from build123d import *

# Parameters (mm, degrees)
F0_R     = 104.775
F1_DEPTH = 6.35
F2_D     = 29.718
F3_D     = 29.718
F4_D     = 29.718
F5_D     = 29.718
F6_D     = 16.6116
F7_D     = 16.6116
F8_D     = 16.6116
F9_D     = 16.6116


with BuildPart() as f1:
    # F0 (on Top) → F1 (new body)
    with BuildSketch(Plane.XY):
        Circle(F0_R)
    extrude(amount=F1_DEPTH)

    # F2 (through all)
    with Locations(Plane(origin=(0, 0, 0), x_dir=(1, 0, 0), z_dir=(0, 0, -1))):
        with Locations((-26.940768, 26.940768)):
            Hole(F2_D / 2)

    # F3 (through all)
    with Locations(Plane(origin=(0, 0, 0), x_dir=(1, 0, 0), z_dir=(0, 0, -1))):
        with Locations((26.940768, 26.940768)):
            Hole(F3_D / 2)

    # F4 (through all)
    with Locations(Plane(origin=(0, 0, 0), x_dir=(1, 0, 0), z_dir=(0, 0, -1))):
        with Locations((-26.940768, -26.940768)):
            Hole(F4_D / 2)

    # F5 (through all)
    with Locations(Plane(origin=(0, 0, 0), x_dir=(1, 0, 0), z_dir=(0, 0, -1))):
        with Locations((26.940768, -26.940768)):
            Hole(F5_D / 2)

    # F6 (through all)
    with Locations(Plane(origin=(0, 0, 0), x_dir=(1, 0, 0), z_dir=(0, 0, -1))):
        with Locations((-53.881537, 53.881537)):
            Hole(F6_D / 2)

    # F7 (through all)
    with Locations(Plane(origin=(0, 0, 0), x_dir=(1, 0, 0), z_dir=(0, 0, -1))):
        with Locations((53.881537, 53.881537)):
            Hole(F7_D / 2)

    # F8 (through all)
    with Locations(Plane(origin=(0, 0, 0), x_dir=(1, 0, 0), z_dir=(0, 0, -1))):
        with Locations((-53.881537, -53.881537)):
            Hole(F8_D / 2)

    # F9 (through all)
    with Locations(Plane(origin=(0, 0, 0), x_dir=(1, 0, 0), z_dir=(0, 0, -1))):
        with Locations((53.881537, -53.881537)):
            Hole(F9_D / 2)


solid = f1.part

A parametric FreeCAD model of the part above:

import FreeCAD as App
import Part
import Sketcher
Q = App.Units.Quantity

doc = App.newDocument("Part")
body = doc.addObject("PartDesign::Body", "Body")

sketch1 = body.newObject("Sketcher::SketchObject", "Sketch")
sketch1.AttachmentSupport = (doc.getObject("XY_Plane"), [""])
sketch1.MapMode = "FlatFace"
sketch1.addGeometry(Part.Circle(App.Vector(0, 0, 0), App.Vector(0, 0, 1), 104.775), False)
sketch1.addConstraint([
    Sketcher.Constraint("Coincident", 0, 3, -1, 1),
    Sketcher.Constraint("Diameter", 0, Q("8.25 in")),
])
pad1 = body.newObject("PartDesign::Pad", "Pad")
pad1.Profile = sketch1
pad1.Length = Q("0.25 in")

sketch2 = body.newObject("Sketcher::SketchObject", "Sketch001")
sketch2.AttachmentSupport = (doc.getObject("XY_Plane"), [""])
sketch2.MapMode = "FlatFace"
sketch2.addGeometry(Part.Circle(App.Vector(-26.940768, -26.940768, 0), App.Vector(0, 0, 1), 14.859), False)
sketch2.addConstraint([
    Sketcher.Constraint("Diameter", 0, Q("1.17 in")),
    Sketcher.Constraint("DistanceX", 0, 3, -1, 1, 26.940768),
    Sketcher.Constraint("DistanceY", 0, 3, -1, 1, 26.940768),
])
doc.recompute()
hole = body.newObject("PartDesign::Hole", "Hole")
hole.Profile = sketch2
hole.ThreadType = "None"
hole.Diameter = Q("1.17 in")
hole.DepthType = "ThroughAll"
hole.Reversed = True

sketch3 = body.newObject("Sketcher::SketchObject", "Sketch002")
sketch3.AttachmentSupport = (doc.getObject("XY_Plane"), [""])
sketch3.MapMode = "FlatFace"
sketch3.addGeometry(Part.Circle(App.Vector(26.940768, -26.940768, 0), App.Vector(0, 0, 1), 14.859), False)
sketch3.addConstraint([
    Sketcher.Constraint("Diameter", 0, Q("1.17 in")),
    Sketcher.Constraint("DistanceX", -1, 1, 0, 3, 26.940768),
    Sketcher.Constraint("DistanceY", 0, 3, -1, 1, 26.940768),
])
doc.recompute()
hole2 = body.newObject("PartDesign::Hole", "Hole001")
hole2.Profile = sketch3
hole2.ThreadType = "None"
hole2.Diameter = Q("1.17 in")
hole2.DepthType = "ThroughAll"
hole2.Reversed = True

sketch4 = body.newObject("Sketcher::SketchObject", "Sketch003")
sketch4.AttachmentSupport = (doc.getObject("XY_Plane"), [""])
sketch4.MapMode = "FlatFace"
sketch4.addGeometry(Part.Circle(App.Vector(-26.940768, 26.940768, 0), App.Vector(0, 0, 1), 14.859), False)
sketch4.addConstraint([
    Sketcher.Constraint("Diameter", 0, Q("1.17 in")),
    Sketcher.Constraint("DistanceX", 0, 3, -1, 1, 26.940768),
    Sketcher.Constraint("DistanceY", -1, 1, 0, 3, 26.940768),
])
doc.recompute()
hole3 = body.newObject("PartDesign::Hole", "Hole002")
hole3.Profile = sketch4
hole3.ThreadType = "None"
hole3.Diameter = Q("1.17 in")
hole3.DepthType = "ThroughAll"
hole3.Reversed = True

sketch5 = body.newObject("Sketcher::SketchObject", "Sketch004")
sketch5.AttachmentSupport = (doc.getObject("XY_Plane"), [""])
sketch5.MapMode = "FlatFace"
sketch5.addGeometry(Part.Circle(App.Vector(26.940768, 26.940768, 0), App.Vector(0, 0, 1), 14.859), False)
sketch5.addConstraint([
    Sketcher.Constraint("Diameter", 0, Q("1.17 in")),
    Sketcher.Constraint("DistanceX", -1, 1, 0, 3, 26.940768),
    Sketcher.Constraint("DistanceY", -1, 1, 0, 3, 26.940768),
])
doc.recompute()
hole4 = body.newObject("PartDesign::Hole", "Hole003")
hole4.Profile = sketch5
hole4.ThreadType = "None"
hole4.Diameter = Q("1.17 in")
hole4.DepthType = "ThroughAll"
hole4.Reversed = True

sketch6 = body.newObject("Sketcher::SketchObject", "Sketch005")
sketch6.AttachmentSupport = (doc.getObject("XY_Plane"), [""])
sketch6.MapMode = "FlatFace"
sketch6.addGeometry(Part.Circle(App.Vector(-53.881537, -53.881537, 0), App.Vector(0, 0, 1), 8.3058), False)
sketch6.addConstraint([
    Sketcher.Constraint("Diameter", 0, Q("0.654 in")),
    Sketcher.Constraint("DistanceX", 0, 3, -1, 1, 53.881537),
    Sketcher.Constraint("DistanceY", 0, 3, -1, 1, 53.881537),
])
doc.recompute()
hole5 = body.newObject("PartDesign::Hole", "Hole004")
hole5.Profile = sketch6
hole5.ThreadType = "None"
hole5.Diameter = Q("0.654 in")
hole5.DepthType = "ThroughAll"
hole5.Reversed = True

sketch7 = body.newObject("Sketcher::SketchObject", "Sketch006")
sketch7.AttachmentSupport = (doc.getObject("XY_Plane"), [""])
sketch7.MapMode = "FlatFace"
sketch7.addGeometry(Part.Circle(App.Vector(53.881537, -53.881537, 0), App.Vector(0, 0, 1), 8.3058), False)
sketch7.addConstraint([
    Sketcher.Constraint("Diameter", 0, Q("0.654 in")),
    Sketcher.Constraint("DistanceX", -1, 1, 0, 3, 53.881537),
    Sketcher.Constraint("DistanceY", 0, 3, -1, 1, 53.881537),
])
doc.recompute()
hole6 = body.newObject("PartDesign::Hole", "Hole005")
hole6.Profile = sketch7
hole6.ThreadType = "None"
hole6.Diameter = Q("0.654 in")
hole6.DepthType = "ThroughAll"
hole6.Reversed = True

sketch8 = body.newObject("Sketcher::SketchObject", "Sketch007")
sketch8.AttachmentSupport = (doc.getObject("XY_Plane"), [""])
sketch8.MapMode = "FlatFace"
sketch8.addGeometry(Part.Circle(App.Vector(-53.881537, 53.881537, 0), App.Vector(0, 0, 1), 8.3058), False)
sketch8.addConstraint([
    Sketcher.Constraint("Diameter", 0, Q("0.654 in")),
    Sketcher.Constraint("DistanceX", 0, 3, -1, 1, 53.881537),
    Sketcher.Constraint("DistanceY", -1, 1, 0, 3, 53.881537),
])
doc.recompute()
hole7 = body.newObject("PartDesign::Hole", "Hole006")
hole7.Profile = sketch8
hole7.ThreadType = "None"
hole7.Diameter = Q("0.654 in")
hole7.DepthType = "ThroughAll"
hole7.Reversed = True

sketch9 = body.newObject("Sketcher::SketchObject", "Sketch008")
sketch9.AttachmentSupport = (doc.getObject("XY_Plane"), [""])
sketch9.MapMode = "FlatFace"
sketch9.addGeometry(Part.Circle(App.Vector(53.881537, 53.881537, 0), App.Vector(0, 0, 1), 8.3058), False)
sketch9.addConstraint([
    Sketcher.Constraint("Diameter", 0, Q("0.654 in")),
    Sketcher.Constraint("DistanceX", -1, 1, 0, 3, 53.881537),
    Sketcher.Constraint("DistanceY", -1, 1, 0, 3, 53.881537),
])
doc.recompute()
hole8 = body.newObject("PartDesign::Hole", "Hole007")
hole8.Profile = sketch9
hole8.ThreadType = "None"
hole8.Diameter = Q("0.654 in")
hole8.DepthType = "ThroughAll"
hole8.Reversed = True

doc.recompute()
